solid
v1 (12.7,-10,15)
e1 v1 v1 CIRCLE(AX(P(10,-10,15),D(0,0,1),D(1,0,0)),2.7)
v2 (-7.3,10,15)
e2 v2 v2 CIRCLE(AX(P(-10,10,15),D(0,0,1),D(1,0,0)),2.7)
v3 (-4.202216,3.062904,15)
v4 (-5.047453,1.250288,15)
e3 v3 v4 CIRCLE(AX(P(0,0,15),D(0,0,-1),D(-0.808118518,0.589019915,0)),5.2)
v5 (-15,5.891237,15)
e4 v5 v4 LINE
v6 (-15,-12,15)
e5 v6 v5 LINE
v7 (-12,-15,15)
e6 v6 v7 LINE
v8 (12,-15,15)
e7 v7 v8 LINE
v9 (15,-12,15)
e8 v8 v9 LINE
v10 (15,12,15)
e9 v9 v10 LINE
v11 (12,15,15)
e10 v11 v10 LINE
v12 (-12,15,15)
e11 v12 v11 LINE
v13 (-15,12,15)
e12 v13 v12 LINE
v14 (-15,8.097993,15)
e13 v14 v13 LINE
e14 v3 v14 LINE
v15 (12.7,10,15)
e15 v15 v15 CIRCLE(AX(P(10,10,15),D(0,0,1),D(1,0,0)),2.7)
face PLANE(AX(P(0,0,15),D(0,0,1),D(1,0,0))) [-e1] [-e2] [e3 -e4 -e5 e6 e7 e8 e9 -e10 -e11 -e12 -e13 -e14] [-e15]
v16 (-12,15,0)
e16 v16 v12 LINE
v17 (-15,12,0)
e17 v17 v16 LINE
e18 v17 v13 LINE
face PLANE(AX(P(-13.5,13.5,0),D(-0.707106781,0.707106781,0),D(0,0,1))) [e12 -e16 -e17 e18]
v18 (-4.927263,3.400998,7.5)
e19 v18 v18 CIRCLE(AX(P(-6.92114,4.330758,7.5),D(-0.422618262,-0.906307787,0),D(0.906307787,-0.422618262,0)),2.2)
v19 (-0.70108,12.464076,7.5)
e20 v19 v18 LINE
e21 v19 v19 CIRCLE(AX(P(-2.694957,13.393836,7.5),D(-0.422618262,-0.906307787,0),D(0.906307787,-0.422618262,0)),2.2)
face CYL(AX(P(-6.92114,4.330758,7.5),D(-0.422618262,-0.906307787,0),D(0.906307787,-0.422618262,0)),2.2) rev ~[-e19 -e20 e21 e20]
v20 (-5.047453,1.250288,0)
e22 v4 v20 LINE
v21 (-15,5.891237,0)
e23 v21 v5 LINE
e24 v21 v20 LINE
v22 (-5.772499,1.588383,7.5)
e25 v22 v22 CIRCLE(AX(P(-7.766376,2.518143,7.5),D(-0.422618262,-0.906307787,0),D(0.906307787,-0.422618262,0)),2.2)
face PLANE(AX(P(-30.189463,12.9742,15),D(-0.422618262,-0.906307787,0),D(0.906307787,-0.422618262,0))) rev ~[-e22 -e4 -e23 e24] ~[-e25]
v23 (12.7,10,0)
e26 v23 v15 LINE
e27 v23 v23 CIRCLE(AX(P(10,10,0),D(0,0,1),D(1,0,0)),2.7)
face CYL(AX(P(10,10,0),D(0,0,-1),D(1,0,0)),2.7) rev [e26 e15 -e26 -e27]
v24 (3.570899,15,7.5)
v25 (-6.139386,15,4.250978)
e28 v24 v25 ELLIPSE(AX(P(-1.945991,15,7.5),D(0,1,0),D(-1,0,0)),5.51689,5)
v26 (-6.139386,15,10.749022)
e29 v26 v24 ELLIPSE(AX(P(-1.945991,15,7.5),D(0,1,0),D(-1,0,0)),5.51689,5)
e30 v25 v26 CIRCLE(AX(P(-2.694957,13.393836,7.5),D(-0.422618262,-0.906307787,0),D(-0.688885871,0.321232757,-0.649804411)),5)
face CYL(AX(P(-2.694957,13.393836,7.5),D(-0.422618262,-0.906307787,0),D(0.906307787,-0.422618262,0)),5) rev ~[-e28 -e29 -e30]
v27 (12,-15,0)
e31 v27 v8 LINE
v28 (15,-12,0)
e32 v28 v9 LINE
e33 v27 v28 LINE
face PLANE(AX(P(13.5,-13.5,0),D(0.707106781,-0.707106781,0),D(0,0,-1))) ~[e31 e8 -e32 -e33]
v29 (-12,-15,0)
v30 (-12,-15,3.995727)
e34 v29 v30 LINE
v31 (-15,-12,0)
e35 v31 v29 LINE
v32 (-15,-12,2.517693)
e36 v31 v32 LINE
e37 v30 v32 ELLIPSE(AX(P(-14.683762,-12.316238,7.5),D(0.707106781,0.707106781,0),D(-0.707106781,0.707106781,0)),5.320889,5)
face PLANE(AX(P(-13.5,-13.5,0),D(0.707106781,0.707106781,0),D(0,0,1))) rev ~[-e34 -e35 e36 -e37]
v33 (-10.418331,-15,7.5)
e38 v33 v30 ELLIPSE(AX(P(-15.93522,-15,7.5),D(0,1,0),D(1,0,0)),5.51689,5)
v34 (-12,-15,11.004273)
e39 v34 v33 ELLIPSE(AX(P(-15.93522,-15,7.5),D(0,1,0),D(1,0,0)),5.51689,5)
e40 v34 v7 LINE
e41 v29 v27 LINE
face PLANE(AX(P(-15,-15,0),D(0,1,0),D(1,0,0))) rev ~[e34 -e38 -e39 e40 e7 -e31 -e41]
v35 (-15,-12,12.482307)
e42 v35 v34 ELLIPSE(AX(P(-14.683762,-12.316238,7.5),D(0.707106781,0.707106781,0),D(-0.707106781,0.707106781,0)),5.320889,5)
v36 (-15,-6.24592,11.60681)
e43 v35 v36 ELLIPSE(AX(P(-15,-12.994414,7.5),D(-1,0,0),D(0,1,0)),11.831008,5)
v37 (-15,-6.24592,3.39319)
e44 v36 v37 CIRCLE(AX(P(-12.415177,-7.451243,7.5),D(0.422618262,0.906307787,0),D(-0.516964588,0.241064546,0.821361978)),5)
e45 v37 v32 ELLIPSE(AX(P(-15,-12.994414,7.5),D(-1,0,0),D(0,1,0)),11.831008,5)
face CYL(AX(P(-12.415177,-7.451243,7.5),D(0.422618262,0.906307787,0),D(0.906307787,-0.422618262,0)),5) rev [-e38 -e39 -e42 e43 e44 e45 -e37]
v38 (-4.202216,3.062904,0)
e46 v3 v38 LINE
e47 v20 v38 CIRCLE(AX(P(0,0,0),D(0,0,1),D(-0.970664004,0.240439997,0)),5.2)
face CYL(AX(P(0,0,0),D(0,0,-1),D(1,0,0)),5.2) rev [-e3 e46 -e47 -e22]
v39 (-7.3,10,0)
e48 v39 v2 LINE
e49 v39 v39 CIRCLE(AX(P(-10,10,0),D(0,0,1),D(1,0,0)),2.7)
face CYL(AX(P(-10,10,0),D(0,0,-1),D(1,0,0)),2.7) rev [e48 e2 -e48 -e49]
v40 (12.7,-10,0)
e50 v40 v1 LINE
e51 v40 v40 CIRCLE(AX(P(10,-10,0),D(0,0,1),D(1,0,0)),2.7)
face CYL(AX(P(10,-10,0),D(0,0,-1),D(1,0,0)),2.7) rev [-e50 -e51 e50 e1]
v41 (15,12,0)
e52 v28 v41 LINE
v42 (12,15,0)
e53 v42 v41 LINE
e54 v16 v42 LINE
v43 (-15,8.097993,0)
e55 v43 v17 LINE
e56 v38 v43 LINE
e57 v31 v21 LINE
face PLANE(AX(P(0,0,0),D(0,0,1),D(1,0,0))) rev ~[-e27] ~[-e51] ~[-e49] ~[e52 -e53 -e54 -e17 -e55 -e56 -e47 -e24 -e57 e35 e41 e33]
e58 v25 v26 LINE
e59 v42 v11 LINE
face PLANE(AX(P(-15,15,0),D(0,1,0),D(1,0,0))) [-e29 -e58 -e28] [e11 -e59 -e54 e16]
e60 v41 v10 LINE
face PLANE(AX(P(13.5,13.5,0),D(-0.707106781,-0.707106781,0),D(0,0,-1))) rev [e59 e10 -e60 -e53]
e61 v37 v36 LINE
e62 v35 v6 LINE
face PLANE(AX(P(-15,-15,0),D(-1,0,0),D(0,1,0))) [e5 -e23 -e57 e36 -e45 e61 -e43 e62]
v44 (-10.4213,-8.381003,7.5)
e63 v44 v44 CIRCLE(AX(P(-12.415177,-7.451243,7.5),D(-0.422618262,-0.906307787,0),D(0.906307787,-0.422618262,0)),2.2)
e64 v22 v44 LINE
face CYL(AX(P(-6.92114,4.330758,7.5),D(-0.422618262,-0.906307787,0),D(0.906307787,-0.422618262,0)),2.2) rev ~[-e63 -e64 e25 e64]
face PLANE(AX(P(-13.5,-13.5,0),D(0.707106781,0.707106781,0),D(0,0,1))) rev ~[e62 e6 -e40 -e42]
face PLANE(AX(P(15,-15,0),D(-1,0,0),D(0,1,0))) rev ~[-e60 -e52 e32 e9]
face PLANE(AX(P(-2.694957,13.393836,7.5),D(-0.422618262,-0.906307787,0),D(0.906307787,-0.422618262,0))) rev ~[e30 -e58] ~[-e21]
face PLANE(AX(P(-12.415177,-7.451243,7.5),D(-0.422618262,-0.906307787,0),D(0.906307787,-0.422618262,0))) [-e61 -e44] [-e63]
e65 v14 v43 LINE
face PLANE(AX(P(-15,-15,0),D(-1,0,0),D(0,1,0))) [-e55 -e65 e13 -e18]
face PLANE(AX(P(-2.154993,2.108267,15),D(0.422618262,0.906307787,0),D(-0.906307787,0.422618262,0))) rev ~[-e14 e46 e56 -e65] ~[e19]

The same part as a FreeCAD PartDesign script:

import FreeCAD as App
import Part
import Sketcher

V = App.Vector
Q = App.Units.Quantity


def edges_at(feature, points):
    """Names of the edges that pass closest to the given points."""
    edges = feature.Shape.Edges
    near = lambda p: min(range(len(edges)), key=lambda i: edges[i].distToShape(Part.Vertex(*p))[0])
    return sorted({f"Edge{near(p) + 1}" for p in points})

doc = App.newDocument("Part")
body = doc.addObject("PartDesign::Body", "Body")

sketch1 = body.newObject("Sketcher::SketchObject", "Sketch")
sketch1.AttachmentSupport = (doc.getObject("XY_Plane"), [""])
sketch1.MapMode = "FlatFace"
sketch1.addGeometry(Part.LineSegment(V(-15, 15, 0), V(-15, -15, 0)), False)
sketch1.addGeometry(Part.LineSegment(V(-15, -15, 0), V(15, -15, 0)), False)
sketch1.addGeometry(Part.LineSegment(V(15, -15, 0), V(15, 15, 0)), False)
sketch1.addGeometry(Part.LineSegment(V(15, 15, 0), V(-15, 15, 0)), False)
sketch1.addGeometry(Part.Circle(V(0, 0, 0), V(0, 0, 1), 5.2), False)
sketch1.addGeometry(Part.Circle(V(10, -10, 0), V(0, 0, 1), 2.7), False)
sketch1.addGeometry(Part.Circle(V(-10, 10, 0), V(0, 0, 1), 2.7), False)
sketch1.addGeometry(Part.Circle(V(10, 10, 0), V(0, 0, 1), 2.7), False)
sketch1.addConstraint(Sketcher.Constraint("Coincident", 0, 2, 1, 1))
sketch1.addConstraint(Sketcher.Constraint("Coincident", 1, 2, 2, 1))
sketch1.addConstraint(Sketcher.Constraint("Coincident", 2, 2, 3, 1))
sketch1.addConstraint(Sketcher.Constraint("Coincident", 3, 2, 0, 1))
sketch1.addConstraint(Sketcher.Constraint("Vertical", 0))
sketch1.addConstraint(Sketcher.Constraint("Horizontal", 1))
sketch1.addConstraint(Sketcher.Constraint("Vertical", 2))
sketch1.addConstraint(Sketcher.Constraint("Horizontal", 3))
sketch1.addConstraint(Sketcher.Constraint("Coincident", 4, 3, -1, 1))
sketch1.addConstraint(Sketcher.Constraint("Equal", 5, 6))
sketch1.addConstraint(Sketcher.Constraint("Equal", 6, 7))
sketch1.addConstraint(Sketcher.Constraint("Symmetric", 5, 3, 6, 3, -1, 1))
sketch1.addConstraint(Sketcher.Constraint("Symmetric", 0, 2, 2, 2, -1, 1))
sketch1.addConstraint(Sketcher.Constraint("Symmetric", 6, 3, 7, 3, -2))
sketch1.addConstraint(Sketcher.Constraint("Equal", 3, 0))
sketch1.addConstraint(Sketcher.Constraint("Diameter", 4, 10.4))
sketch1.addConstraint(Sketcher.Constraint("Diameter", 5, 5.4))
sketch1.addConstraint(Sketcher.Constraint("DistanceX", 1, 1, 1, 2, 30.0))
sketch1.addConstraint(Sketcher.Constraint("DistanceX", -1, 1, 5, 3, 10.0))
sketch1.addConstraint(Sketcher.Constraint("DistanceY", 5, 3, -1, 1, 10.0))
pad1 = body.newObject("PartDesign::Pad", "Pad")
pad1.Profile = sketch1
pad1.Length = 15
doc.recompute()

chamfer = body.newObject("PartDesign::Chamfer", "Chamfer")
chamfer.Base = (pad1, edges_at(pad1, [
    (15, 15, 7.5),
    (15, -15, 7.5),
    (-15, -15, 7.5),
    (-15, 15, 7.5),
]))
chamfer.Size = 3

sketch2 = body.newObject("Sketcher::SketchObject", "Sketch001")
sketch2.AttachmentSupport = (doc.getObject("XY_Plane"), [""])
sketch2.MapMode = "FlatFace"
sketch2.AttachmentOffset = App.Placement(V(0, 0, 15), App.Rotation())
sketch2.addGeometry(Part.LineSegment(V(-29.3, 14.8, 0), V(-29.8, 13.9, 0)), False)
sketch2.addGeometry(Part.LineSegment(V(-29.8, 13.9, 0), V(-30.2, 13, 0)), False)
sketch2.addGeometry(Part.LineSegment(V(-30.2, 13, 0), V(-3, 0.3, 0)), False)
sketch2.addGeometry(Part.LineSegment(V(-3, 0.3, 0), V(-2.2, 2.1, 0)), False)
sketch2.addGeometry(Part.LineSegment(V(-2.2, 2.1, 0), V(-29.3, 14.8, 0)), False)
sketch2.addConstraint(Sketcher.Constraint("Coincident", 0, 2, 1, 1))
sketch2.addConstraint(Sketcher.Constraint("Coincident", 1, 2, 2, 1))
sketch2.addConstraint(Sketcher.Constraint("Coincident", 2, 2, 3, 1))
sketch2.addConstraint(Sketcher.Constraint("Coincident", 3, 2, 4, 1))
sketch2.addConstraint(Sketcher.Constraint("Coincident", 4, 2, 0, 1))
sketch2.addConstraint(Sketcher.Constraint("Parallel", 0, 1))
sketch2.addConstraint(Sketcher.Constraint("Perpendicular", 1, 2))
sketch2.addConstraint(Sketcher.Constraint("Perpendicular", 2, 3))
sketch2.addConstraint(Sketcher.Constraint("Perpendicular", 3, 4))
sketch2.addConstraint(Sketcher.Constraint("Equal", 0, 1))
sketch2.addConstraint(Sketcher.Constraint("Angle", 0, Q("-115 deg")))
sketch2.addConstraint(Sketcher.Constraint("Distance", 0, 1.0))
sketch2.addConstraint(Sketcher.Constraint("Distance", 2, 30.0))
sketch2.addConstraint(Sketcher.Constraint("DistanceY", -1, 1, 1, 2, 12.9742))
sketch2.addConstraint(Sketcher.Constraint("DistanceX", 2, 2, -1, 1, 3.000229))
pocket1 = body.newObject("PartDesign::Pocket", "Pocket")
pocket1.Profile = sketch2
pocket1.Length = 25

sketch3 = body.newObject("Sketcher::SketchObject", "Sketch002")
sketch3.Placement = App.Placement(V(0.422618, 0.906308, 0), App.Rotation(V(0.906307787, -0.422618262, 0), V(0, 0, 1), V(-0.422618262, -0.906307787, 0), "ZXY"))
sketch3.addGeometry(Part.Circle(V(-8.1, 7.5, 0), V(0, 0, 1), 2.2), False)
sketch3.addConstraint(Sketcher.Constraint("Diameter", 0, 4.4))
sketch3.addConstraint(Sketcher.Constraint("DistanceY", -1, 1, 0, 3, 7.5))
sketch3.addConstraint(Sketcher.Constraint("DistanceX", 0, 3, -1, 1, 8.10294))
pocket2 = body.newObject("PartDesign::Pocket", "Pocket001")
pocket2.Profile = sketch3
pocket2.Length = 70
pocket2.Midplane = True

sketch4 = body.newObject("Sketcher::SketchObject", "Sketch003")
sketch4.Placement = App.Placement(V(4.648801, 9.969386, 0), App.Rotation(V(0.906307787, -0.422618262, 0), V(0, 0, 1), V(-0.422618262, -0.906307787, 0), "ZXY"))
sketch4.addGeometry(Part.Circle(V(-8, 8, 0), V(0, 0, 1), 5), False)
sketch4.addConstraint(Sketcher.Constraint("Diameter", 0, 10.0))
sketch4.addConstraint(Sketcher.Constraint("DistanceY", -1, 1, 0, 3, 7.5))
sketch4.addConstraint(Sketcher.Constraint("DistanceX", 0, 3, -1, 1, 8.10294))
pocket3 = body.newObject("PartDesign::Pocket", "Pocket002")
pocket3.Profile = sketch4
pocket3.Length = 25

sketch5 = body.newObject("Sketcher::SketchObject", "Sketch004")
sketch5.Placement = App.Placement(V(-5.071419, -10.875693, 0), App.Rotation(V(0.906307787, -0.422618262, 0), V(0, 0, 1), V(-0.422618262, -0.906307787, 0), "ZXY"))
sketch5.addGeometry(Part.Circle(V(-8, 8, 0), V(0, 0, 1), 5), False)
sketch5.addConstraint(Sketcher.Constraint("Diameter", 0, 10.0))
sketch5.addConstraint(Sketcher.Constraint("DistanceY", -1, 1, 0, 3, 7.5))
sketch5.addConstraint(Sketcher.Constraint("DistanceX", 0, 3, -1, 1, 8.10294))
pocket4 = body.newObject("PartDesign::Pocket", "Pocket003")
pocket4.Profile = sketch5
pocket4.Length = 25
pocket4.Reversed = True

doc.recompute()
